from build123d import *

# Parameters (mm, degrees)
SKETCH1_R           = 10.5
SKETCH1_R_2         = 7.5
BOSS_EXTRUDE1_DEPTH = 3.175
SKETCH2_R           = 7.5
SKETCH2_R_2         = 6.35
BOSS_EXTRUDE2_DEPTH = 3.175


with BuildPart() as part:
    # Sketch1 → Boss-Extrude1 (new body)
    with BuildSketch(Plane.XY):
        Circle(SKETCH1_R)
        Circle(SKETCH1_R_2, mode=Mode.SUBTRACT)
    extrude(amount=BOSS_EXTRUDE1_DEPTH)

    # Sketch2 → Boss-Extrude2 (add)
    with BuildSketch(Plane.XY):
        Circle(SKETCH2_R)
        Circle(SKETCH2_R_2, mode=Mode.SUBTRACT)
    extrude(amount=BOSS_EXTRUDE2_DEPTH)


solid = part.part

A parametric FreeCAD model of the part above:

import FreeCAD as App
import Part
import Sketcher

V = App.Vector
Q = App.Units.Quantity

doc = App.newDocument("Part")
params = doc.addObject("Spreadsheet::Sheet", "Params")
for row, (alias, value) in enumerate([
    ("sketch1_diameter", "21 mm"),
    ("sketch1_diameter2", "15 mm"),
    ("pad1_length", "3.175 mm"),
    ("sketch2_diameter", "15 mm"),
    ("sketch2_diameter2", "12.7 mm"),
    ("pad2_length", "3.175 mm"),
], start=1):
    params.set(f"A{row}", alias)
    params.set(f"B{row}", "=" + value)
    params.setAlias(f"B{row}", alias)

body = doc.addObject("PartDesign::Body", "Body")

sketch1 = doc.addObject("Sketcher::SketchObject", "Sketch")
body.addObject(sketch1)
sketch1.AttachmentSupport = (doc.XY_Plane, [""])
sketch1.MapMode = "FlatFace"
sketch1.addGeometry([
    Part.Circle(V(0, 0, 0), V(0, 0, 1), 10),
    Part.Circle(V(0, 0, 0), V(0, 0, 1), 8),
], False)
sketch1.addConstraint([
    Sketcher.Constraint("Coincident", 0, 3, -1, 1),
    Sketcher.Constraint("Coincident", 1, 3, -1, 1),
    Sketcher.Constraint("Diameter", 0, Q("21 mm")),
    Sketcher.Constraint("Diameter", 1, Q("15 mm")),
])
sketch1.setExpression("Constraints[2]", "Params.sketch1_diameter")
sketch1.setExpression("Constraints[3]", "Params.sketch1_diameter2")
pad1 = doc.addObject("PartDesign::Pad", "Pad")
body.addObject(pad1)
pad1.Profile = sketch1
pad1.setExpression("Length", "Params.pad1_length")

sketch2 = doc.addObject("Sketcher::SketchObject", "Sketch001")
body.addObject(sketch2)
sketch2.AttachmentSupport = (doc.XY_Plane, [""])
sketch2.MapMode = "FlatFace"
sketch2.addGeometry([
    Part.Circle(V(0, 0, 0), V(0, 0, 1), 8),
    Part.Circle(V(0, 0, 0), V(0, 0, 1), 6),
], False)
sketch2.addConstraint([
    Sketcher.Constraint("Coincident", 0, 3, -1, 1),
    Sketcher.Constraint("Coincident", 1, 3, -1, 1),
    Sketcher.Constraint("Diameter", 0, Q("15 mm")),
    Sketcher.Constraint("Diameter", 1, Q("12.7 mm")),
])
sketch2.setExpression("Constraints[2]", "Params.sketch2_diameter")
sketch2.setExpression("Constraints[3]", "Params.sketch2_diameter2")
pad2 = doc.addObject("PartDesign::Pad", "Pad001")
body.addObject(pad2)
pad2.Profile = sketch2
pad2.setExpression("Length", "Params.pad2_length")

doc.recompute()
